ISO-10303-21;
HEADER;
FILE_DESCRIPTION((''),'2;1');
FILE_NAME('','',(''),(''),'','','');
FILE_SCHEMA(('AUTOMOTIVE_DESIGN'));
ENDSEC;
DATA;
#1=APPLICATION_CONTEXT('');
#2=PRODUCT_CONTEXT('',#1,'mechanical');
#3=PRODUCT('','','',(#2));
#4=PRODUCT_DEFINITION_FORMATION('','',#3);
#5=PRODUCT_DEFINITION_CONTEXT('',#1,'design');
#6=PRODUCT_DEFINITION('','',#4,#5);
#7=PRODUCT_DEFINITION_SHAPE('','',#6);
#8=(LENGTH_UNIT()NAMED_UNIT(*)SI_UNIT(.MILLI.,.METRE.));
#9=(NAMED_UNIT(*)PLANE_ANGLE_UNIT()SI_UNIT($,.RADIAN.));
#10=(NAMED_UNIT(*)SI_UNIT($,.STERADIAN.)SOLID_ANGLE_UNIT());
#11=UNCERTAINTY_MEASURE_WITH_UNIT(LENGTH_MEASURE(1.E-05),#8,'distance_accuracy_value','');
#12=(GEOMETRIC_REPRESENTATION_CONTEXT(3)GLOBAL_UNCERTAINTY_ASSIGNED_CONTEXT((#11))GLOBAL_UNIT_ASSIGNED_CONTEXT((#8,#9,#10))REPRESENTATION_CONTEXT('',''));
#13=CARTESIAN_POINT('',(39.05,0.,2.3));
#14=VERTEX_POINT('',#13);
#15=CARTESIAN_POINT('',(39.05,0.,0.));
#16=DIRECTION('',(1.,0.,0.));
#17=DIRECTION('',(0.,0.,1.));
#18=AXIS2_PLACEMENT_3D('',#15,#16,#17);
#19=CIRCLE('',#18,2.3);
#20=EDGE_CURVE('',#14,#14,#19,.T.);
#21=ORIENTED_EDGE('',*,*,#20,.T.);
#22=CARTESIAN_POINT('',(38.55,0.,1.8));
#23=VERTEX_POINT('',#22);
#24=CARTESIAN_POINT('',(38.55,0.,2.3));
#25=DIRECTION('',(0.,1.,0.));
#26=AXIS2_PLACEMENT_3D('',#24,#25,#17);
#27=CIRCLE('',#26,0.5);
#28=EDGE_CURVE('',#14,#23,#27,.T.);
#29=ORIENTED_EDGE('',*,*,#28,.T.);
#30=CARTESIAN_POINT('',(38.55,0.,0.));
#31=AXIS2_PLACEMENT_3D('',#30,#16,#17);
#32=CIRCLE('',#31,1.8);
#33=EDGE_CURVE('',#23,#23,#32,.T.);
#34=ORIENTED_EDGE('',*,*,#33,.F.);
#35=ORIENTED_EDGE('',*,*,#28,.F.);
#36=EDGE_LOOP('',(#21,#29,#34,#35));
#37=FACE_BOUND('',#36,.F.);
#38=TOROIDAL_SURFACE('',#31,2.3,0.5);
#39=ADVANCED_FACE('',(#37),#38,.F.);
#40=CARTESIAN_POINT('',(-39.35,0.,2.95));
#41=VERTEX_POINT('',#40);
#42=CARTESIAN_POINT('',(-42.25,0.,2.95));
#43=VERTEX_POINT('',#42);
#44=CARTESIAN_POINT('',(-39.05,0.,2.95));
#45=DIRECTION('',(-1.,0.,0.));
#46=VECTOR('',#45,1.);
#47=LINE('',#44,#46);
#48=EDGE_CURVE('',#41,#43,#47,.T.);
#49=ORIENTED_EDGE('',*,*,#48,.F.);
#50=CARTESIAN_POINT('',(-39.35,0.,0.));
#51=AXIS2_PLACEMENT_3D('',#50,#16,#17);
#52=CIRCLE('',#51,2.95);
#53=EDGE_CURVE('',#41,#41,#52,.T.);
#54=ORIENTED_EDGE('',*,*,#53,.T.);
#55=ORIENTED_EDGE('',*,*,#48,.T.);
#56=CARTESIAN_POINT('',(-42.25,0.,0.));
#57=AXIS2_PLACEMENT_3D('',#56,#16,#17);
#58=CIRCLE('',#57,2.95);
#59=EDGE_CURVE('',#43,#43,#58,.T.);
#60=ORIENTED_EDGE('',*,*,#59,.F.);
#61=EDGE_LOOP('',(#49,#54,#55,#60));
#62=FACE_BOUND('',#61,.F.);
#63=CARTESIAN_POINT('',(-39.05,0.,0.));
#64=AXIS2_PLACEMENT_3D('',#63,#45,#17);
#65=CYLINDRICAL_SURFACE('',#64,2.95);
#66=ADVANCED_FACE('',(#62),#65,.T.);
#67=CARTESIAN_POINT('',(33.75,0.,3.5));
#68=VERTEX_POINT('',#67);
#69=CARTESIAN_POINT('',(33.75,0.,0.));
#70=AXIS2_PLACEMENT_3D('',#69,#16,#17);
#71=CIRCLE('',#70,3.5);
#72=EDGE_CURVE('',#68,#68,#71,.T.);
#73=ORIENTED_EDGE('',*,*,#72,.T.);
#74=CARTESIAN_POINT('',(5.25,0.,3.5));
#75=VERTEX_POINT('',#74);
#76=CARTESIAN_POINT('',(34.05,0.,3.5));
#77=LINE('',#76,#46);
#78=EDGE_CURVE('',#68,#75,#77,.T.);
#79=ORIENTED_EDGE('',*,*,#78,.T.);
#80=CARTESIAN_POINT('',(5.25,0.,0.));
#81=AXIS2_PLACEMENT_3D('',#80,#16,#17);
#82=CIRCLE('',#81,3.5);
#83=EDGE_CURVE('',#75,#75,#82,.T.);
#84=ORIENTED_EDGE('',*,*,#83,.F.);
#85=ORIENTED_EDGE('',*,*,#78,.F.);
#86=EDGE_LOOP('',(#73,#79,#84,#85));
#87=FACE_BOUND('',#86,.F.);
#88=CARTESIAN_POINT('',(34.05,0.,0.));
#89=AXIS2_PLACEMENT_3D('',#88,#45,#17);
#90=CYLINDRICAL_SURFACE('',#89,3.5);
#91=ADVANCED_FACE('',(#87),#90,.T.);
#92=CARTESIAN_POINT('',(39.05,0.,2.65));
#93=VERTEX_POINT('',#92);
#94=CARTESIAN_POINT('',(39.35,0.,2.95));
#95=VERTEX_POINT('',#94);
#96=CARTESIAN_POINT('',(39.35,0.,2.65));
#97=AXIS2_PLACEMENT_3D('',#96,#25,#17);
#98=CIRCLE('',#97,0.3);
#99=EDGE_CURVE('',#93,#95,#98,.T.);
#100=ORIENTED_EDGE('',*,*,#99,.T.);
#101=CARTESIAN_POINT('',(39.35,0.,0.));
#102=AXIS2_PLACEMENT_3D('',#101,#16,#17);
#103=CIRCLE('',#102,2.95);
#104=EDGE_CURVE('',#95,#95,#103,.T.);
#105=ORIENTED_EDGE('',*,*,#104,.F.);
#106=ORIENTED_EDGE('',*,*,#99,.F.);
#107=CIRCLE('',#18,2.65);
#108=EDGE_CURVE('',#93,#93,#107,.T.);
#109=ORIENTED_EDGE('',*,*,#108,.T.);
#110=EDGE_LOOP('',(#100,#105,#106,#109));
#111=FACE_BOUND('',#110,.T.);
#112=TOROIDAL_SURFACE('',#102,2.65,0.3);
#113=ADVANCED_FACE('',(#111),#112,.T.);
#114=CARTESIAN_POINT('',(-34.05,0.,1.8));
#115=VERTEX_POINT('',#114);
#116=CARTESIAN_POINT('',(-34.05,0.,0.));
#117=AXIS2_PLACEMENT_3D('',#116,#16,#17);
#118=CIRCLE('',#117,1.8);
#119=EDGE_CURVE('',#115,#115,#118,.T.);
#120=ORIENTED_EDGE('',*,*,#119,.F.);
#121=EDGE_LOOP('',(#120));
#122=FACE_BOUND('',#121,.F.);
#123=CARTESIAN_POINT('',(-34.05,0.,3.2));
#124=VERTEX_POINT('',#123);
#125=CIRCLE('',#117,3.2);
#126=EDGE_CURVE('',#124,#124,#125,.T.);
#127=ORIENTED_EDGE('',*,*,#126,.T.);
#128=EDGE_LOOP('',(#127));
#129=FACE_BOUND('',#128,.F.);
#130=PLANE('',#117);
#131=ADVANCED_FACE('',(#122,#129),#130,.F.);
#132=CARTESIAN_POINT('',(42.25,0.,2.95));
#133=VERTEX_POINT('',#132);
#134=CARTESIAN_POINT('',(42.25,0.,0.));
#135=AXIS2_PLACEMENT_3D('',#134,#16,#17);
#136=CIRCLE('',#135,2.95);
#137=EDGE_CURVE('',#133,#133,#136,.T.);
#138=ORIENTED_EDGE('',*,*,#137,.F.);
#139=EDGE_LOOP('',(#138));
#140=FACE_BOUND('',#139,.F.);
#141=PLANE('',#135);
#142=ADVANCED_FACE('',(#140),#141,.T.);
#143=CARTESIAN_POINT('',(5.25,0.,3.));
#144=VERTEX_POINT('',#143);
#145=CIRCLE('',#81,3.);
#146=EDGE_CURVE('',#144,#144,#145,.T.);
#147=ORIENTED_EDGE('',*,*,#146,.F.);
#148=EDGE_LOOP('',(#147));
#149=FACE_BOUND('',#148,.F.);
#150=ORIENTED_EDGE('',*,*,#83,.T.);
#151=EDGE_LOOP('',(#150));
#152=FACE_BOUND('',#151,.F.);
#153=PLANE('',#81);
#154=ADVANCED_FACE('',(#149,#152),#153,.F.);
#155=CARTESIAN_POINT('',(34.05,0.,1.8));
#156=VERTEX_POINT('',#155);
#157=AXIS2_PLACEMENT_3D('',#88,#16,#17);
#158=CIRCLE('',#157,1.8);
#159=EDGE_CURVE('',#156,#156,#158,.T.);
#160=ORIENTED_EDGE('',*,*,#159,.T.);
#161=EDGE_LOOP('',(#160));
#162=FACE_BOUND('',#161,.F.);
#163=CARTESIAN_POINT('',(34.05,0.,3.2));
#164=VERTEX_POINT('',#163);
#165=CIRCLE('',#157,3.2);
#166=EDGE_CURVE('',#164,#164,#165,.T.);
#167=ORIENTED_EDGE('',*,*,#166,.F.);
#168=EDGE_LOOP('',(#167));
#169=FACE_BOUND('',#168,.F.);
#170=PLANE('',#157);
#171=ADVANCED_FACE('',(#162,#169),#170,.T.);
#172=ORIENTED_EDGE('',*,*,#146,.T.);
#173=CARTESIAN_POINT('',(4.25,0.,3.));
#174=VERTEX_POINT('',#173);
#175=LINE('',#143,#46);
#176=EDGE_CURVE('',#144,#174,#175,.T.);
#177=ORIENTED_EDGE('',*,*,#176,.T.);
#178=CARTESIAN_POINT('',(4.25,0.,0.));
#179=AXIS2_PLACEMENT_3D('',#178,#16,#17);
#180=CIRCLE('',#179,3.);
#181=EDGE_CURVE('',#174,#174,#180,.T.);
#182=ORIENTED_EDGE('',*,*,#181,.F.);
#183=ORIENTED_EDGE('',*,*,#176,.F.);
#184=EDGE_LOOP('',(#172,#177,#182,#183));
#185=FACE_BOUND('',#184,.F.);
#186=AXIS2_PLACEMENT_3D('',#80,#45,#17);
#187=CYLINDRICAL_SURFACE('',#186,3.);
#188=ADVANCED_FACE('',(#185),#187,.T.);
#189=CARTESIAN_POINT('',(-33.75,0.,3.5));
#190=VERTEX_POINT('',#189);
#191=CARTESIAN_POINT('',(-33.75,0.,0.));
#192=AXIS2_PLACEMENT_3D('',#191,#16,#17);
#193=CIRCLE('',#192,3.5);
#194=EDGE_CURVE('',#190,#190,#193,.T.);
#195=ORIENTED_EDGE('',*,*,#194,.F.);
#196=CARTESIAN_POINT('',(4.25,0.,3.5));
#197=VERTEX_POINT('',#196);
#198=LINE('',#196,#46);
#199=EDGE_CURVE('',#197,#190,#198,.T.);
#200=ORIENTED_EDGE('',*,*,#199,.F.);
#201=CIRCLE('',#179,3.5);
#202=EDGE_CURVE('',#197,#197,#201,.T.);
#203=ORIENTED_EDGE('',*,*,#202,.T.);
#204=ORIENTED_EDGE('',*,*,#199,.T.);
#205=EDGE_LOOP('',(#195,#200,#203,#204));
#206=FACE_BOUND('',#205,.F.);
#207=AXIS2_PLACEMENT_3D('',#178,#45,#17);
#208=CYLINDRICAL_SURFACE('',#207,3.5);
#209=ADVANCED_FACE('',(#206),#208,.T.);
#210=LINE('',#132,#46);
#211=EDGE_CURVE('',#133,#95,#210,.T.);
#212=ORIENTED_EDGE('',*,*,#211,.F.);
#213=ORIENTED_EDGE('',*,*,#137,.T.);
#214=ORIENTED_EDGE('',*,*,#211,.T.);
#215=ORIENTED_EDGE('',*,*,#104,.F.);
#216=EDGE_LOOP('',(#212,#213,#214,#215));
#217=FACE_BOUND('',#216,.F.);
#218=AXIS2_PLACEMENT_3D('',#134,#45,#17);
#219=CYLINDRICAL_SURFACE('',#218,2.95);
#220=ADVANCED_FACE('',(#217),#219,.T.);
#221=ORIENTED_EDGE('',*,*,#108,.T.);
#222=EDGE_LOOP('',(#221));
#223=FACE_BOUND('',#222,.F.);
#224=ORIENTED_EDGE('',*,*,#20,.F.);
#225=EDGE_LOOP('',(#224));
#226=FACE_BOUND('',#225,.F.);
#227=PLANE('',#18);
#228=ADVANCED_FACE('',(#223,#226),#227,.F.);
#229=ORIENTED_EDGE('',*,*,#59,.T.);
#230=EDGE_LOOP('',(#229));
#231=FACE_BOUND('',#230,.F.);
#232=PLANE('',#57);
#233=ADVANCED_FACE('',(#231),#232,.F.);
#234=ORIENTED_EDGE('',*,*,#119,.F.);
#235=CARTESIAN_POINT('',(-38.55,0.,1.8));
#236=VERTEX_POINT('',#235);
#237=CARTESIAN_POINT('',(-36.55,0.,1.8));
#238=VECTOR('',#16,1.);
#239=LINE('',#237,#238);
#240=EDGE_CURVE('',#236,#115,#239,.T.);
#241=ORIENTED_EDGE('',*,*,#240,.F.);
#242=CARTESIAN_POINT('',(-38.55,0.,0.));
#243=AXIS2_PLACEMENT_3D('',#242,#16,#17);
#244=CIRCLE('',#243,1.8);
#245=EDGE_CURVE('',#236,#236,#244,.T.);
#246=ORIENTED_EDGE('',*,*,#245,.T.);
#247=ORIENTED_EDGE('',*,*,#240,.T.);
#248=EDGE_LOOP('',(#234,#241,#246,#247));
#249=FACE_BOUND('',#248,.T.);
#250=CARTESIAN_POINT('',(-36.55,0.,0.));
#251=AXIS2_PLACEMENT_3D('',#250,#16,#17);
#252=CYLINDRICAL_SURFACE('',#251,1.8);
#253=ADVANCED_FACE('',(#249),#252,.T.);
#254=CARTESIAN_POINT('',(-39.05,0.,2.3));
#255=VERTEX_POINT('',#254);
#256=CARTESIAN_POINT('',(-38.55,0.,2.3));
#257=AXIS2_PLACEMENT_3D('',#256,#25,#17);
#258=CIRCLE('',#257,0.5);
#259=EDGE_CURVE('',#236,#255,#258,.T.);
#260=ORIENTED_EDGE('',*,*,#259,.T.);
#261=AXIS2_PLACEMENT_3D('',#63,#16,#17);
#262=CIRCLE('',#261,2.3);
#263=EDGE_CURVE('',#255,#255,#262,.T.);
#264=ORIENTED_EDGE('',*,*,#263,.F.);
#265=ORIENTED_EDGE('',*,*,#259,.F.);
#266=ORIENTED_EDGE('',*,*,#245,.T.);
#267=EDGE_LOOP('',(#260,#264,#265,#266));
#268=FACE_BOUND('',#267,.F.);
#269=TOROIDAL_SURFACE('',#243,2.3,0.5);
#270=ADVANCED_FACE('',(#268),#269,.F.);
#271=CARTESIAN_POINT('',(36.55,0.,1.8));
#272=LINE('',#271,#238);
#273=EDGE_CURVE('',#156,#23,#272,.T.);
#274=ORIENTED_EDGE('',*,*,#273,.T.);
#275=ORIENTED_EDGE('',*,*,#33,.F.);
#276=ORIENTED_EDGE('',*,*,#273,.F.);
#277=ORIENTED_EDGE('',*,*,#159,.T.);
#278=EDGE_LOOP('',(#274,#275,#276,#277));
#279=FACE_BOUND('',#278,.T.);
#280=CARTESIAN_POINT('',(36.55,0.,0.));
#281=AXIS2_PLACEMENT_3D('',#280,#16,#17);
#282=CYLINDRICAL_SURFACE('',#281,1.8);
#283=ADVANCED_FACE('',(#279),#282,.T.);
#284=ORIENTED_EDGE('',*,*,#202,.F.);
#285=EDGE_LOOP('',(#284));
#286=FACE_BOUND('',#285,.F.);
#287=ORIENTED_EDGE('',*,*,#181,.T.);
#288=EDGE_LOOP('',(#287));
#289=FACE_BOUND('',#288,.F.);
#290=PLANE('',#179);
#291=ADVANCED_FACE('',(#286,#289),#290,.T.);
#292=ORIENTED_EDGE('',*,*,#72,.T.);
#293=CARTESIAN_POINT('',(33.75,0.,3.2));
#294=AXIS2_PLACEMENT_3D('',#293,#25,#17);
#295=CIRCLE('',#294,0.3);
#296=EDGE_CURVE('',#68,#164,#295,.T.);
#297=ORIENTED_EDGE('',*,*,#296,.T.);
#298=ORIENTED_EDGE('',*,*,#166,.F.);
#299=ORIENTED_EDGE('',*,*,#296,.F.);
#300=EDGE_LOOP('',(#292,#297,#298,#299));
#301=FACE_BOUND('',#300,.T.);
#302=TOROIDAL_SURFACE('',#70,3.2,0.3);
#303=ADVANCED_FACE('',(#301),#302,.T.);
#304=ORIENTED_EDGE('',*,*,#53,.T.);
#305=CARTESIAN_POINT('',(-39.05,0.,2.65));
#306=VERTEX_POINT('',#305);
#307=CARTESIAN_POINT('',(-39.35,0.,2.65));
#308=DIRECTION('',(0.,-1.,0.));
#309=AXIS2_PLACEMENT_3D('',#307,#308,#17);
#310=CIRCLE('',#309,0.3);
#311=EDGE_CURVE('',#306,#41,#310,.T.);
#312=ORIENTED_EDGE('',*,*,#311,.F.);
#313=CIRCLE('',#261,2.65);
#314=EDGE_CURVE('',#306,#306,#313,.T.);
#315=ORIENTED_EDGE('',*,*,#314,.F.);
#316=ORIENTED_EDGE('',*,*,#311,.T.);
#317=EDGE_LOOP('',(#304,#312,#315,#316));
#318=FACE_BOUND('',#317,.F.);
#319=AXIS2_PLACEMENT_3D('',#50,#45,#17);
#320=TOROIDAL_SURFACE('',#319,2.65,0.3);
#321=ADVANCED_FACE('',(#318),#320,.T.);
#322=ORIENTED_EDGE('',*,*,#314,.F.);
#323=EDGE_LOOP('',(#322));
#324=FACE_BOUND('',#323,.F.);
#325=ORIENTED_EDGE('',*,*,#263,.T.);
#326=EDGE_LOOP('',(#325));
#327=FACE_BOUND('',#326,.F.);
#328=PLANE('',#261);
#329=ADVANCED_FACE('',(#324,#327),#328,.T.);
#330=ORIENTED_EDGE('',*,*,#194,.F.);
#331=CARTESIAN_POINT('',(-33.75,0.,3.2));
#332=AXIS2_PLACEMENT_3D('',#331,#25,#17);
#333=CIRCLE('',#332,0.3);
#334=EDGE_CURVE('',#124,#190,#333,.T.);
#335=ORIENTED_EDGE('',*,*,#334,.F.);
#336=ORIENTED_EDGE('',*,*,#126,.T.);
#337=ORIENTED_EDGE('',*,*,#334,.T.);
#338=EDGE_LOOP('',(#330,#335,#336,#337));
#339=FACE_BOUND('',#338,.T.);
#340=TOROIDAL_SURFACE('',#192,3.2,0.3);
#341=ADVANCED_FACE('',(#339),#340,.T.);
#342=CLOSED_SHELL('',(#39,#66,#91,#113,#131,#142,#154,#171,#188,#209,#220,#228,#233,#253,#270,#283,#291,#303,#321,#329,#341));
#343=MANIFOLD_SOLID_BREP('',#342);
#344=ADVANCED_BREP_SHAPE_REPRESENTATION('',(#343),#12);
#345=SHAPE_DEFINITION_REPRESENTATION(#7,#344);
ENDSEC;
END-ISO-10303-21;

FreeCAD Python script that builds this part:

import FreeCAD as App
import Part
import Sketcher


def edges_at(feature, points):
    """Names of the edges that pass closest to the given points."""
    edges = feature.Shape.Edges
    near = lambda p: min(range(len(edges)), key=lambda i: edges[i].distToShape(Part.Vertex(*p))[0])
    return sorted({f"Edge{near(p) + 1}" for p in points})


def add_polygon(sketch, points):
    """Adds a closed chain of lines whose ends are joined by coincident constraints."""
    first, n = sketch.GeometryCount, len(points)
    for a, b in zip(points, points[1:] + points[:1]):
        sketch.addGeometry(Part.LineSegment(App.Vector(*a, 0), App.Vector(*b, 0)), False)
    for i in range(n):
        sketch.addConstraint(Sketcher.Constraint("Coincident", first + i, 2, first + (i + 1) % n, 1))

doc = App.newDocument("Part")
body = doc.addObject("PartDesign::Body", "Body")

# Sketch on XZ plane
sketch1 = body.newObject("Sketcher::SketchObject", "Sketch")
sketch1.AttachmentSupport = (doc.getObject("XZ_Plane"), [""])
sketch1.MapMode = "FlatFace"
add_polygon(sketch1, [(4.25, 3.5), (-34.05, 3.5), (-34.05, 1.8), (-39.05, 1.8), (-39.05, 2.95), (-42.25, 2.95), (-42.25, 0), (42.25, 0), (42.25, 2.95), (39.05, 2.95), (39.05, 1.8), (34.05, 1.8), (34.05, 3.5), (5.25, 3.5), (5.25, 3), (4.25, 3)])  # lines 0-15
sketch1.addConstraint(Sketcher.Constraint("Horizontal", 0))
sketch1.addConstraint(Sketcher.Constraint("Vertical", 1))
sketch1.addConstraint(Sketcher.Constraint("Horizontal", 2))
sketch1.addConstraint(Sketcher.Constraint("Vertical", 3))
sketch1.addConstraint(Sketcher.Constraint("Horizontal", 4))
sketch1.addConstraint(Sketcher.Constraint("Vertical", 5))
sketch1.addConstraint(Sketcher.Constraint("Horizontal", 6))
sketch1.addConstraint(Sketcher.Constraint("Vertical", 7))
sketch1.addConstraint(Sketcher.Constraint("Horizontal", 8))
sketch1.addConstraint(Sketcher.Constraint("Vertical", 9))
sketch1.addConstraint(Sketcher.Constraint("Horizontal", 10))
sketch1.addConstraint(Sketcher.Constraint("Vertical", 11))
sketch1.addConstraint(Sketcher.Constraint("Horizontal", 12))
sketch1.addConstraint(Sketcher.Constraint("Vertical", 13))
sketch1.addConstraint(Sketcher.Constraint("Horizontal", 14))
sketch1.addConstraint(Sketcher.Constraint("Vertical", 15))
sketch1.addConstraint(Sketcher.Constraint("Symmetric", 5, 2, 6, 2, -1, 1))
sketch1.addConstraint(Sketcher.Constraint("Symmetric", 3, 2, 8, 2, -2))
sketch1.addConstraint(Sketcher.Constraint("Symmetric", 1, 2, 10, 2, -2))
sketch1.addConstraint(Sketcher.Constraint("Horizontal", 0, 2, 11, 2))
sketch1.addConstraint(Sketcher.Constraint("DistanceX", 2, 2, 2, 1, 5.0))
sketch1.addConstraint(Sketcher.Constraint("DistanceX", 14, 2, 14, 1, 1.0))
sketch1.addConstraint(Sketcher.Constraint("DistanceX", 0, 2, 0, 1, 38.3))
sketch1.addConstraint(Sketcher.Constraint("DistanceX", 4, 2, 4, 1, 3.2))
sketch1.addConstraint(Sketcher.Constraint("DistanceX", 6, 1, 6, 2, 84.5))
sketch1.addConstraint(Sketcher.Constraint("DistanceY", 1, 2, 1, 1, 1.7))
sketch1.addConstraint(Sketcher.Constraint("DistanceY", 13, 2, 13, 1, 0.5))
sketch1.addConstraint(Sketcher.Constraint("DistanceY", -1, 1, 13, 2, 3.0))
sketch1.addConstraint(Sketcher.Constraint("DistanceY", 3, 1, 3, 2, 1.15))
revolution = body.newObject("PartDesign::Revolution", "Revolution")
revolution.Profile = sketch1
revolution.ReferenceAxis = (sketch1, ["H_Axis"])
revolution.Angle = 360
doc.recompute()

fillet = body.newObject("PartDesign::Fillet", "Fillet")
fillet.Base = (revolution, edges_at(revolution, [(-39.05, 0, -1.8), (39.05, 0, -1.8)]))
fillet.Radius = 0.5
doc.recompute()

fillet2 = body.newObject("PartDesign::Fillet", "Fillet001")
fillet2.Base = (fillet, edges_at(fillet, [
    (-34.05, 0, -3.5),
    (34.05, 0, -3.5),
    (39.05, 0, -2.95),
    (-39.05, 0, -2.95),
]))
fillet2.Radius = 0.3

doc.recompute()
